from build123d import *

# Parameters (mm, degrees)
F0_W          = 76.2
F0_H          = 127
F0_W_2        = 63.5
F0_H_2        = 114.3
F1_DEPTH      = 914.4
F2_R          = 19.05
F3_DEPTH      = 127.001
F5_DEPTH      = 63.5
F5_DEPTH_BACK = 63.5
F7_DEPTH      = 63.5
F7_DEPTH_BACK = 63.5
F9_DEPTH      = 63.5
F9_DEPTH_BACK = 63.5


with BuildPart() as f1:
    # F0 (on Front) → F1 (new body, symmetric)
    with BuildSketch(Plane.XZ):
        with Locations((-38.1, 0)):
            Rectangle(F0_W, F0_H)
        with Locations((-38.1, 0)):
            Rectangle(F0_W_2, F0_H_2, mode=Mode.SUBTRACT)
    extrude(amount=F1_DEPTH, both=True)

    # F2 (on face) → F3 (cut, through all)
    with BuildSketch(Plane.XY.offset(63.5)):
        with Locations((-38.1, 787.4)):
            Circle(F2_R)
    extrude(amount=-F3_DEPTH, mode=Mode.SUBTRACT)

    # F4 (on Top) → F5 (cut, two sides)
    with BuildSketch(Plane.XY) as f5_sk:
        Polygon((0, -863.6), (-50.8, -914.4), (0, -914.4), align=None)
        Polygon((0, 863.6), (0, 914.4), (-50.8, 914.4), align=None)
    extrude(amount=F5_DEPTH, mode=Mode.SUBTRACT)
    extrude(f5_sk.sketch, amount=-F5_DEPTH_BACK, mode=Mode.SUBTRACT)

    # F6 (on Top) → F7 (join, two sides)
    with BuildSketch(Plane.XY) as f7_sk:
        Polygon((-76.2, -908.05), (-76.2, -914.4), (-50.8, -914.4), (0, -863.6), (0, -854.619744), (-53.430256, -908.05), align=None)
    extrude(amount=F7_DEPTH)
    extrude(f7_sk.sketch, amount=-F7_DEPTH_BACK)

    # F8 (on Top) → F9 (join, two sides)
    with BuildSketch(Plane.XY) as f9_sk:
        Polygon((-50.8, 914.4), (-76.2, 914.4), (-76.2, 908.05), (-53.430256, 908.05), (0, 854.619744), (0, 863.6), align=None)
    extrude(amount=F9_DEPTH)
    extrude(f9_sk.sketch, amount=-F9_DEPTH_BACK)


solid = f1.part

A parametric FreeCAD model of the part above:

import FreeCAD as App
import Part
import Sketcher

V = App.Vector
Q = App.Units.Quantity

doc = App.newDocument("Part")
body = doc.addObject("PartDesign::Body", "Body")

sketch1 = body.newObject("Sketcher::SketchObject", "Sketch")
sketch1.AttachmentSupport = (doc.getObject("XZ_Plane"), [""])
sketch1.MapMode = "FlatFace"
sketch1.addGeometry(Part.LineSegment(V(-76, 64, 0), V(-76, -64, 0)), False)
sketch1.addGeometry(Part.LineSegment(V(-76, -64, 0), V(0, -64, 0)), False)
sketch1.addGeometry(Part.LineSegment(V(0, -64, 0), V(0, 64, 0)), False)
sketch1.addGeometry(Part.LineSegment(V(0, 64, 0), V(-76, 64, 0)), False)
sketch1.addGeometry(Part.LineSegment(V(-6, -57, 0), V(-70, -57, 0)), False)
sketch1.addGeometry(Part.LineSegment(V(-70, -57, 0), V(-70, 57, 0)), False)
sketch1.addGeometry(Part.LineSegment(V(-70, 57, 0), V(-6, 57, 0)), False)
sketch1.addGeometry(Part.LineSegment(V(-6, 57, 0), V(-6, -57, 0)), False)
sketch1.addConstraint(Sketcher.Constraint("Coincident", 0, 2, 1, 1))
sketch1.addConstraint(Sketcher.Constraint("Coincident", 1, 2, 2, 1))
sketch1.addConstraint(Sketcher.Constraint("Coincident", 2, 2, 3, 1))
sketch1.addConstraint(Sketcher.Constraint("Coincident", 3, 2, 0, 1))
sketch1.addConstraint(Sketcher.Constraint("Coincident", 4, 2, 5, 1))
sketch1.addConstraint(Sketcher.Constraint("Coincident", 5, 2, 6, 1))
sketch1.addConstraint(Sketcher.Constraint("Coincident", 6, 2, 7, 1))
sketch1.addConstraint(Sketcher.Constraint("Coincident", 7, 2, 4, 1))
sketch1.addConstraint(Sketcher.Constraint("Vertical", 0))
sketch1.addConstraint(Sketcher.Constraint("Horizontal", 1))
sketch1.addConstraint(Sketcher.Constraint("Vertical", 2))
sketch1.addConstraint(Sketcher.Constraint("Horizontal", 3))
sketch1.addConstraint(Sketcher.Constraint("Horizontal", 4))
sketch1.addConstraint(Sketcher.Constraint("Vertical", 5))
sketch1.addConstraint(Sketcher.Constraint("Horizontal", 6))
sketch1.addConstraint(Sketcher.Constraint("Vertical", 7))
sketch1.addConstraint(Sketcher.Constraint("Symmetric", 1, 2, 2, 2, -1, 1))
sketch1.addConstraint(Sketcher.Constraint("DistanceX", 1, 1, 1, 2, Q("3 in")))
sketch1.addConstraint(Sketcher.Constraint("DistanceY", 0, 2, 0, 1, Q("5 in")))
sketch1.addConstraint(Sketcher.Constraint("DistanceX", 4, 2, 4, 1, Q("2.5 in")))
sketch1.addConstraint(Sketcher.Constraint("DistanceY", 5, 1, 5, 2, Q("4.5 in")))
sketch1.addConstraint(Sketcher.Constraint("DistanceX", 4, 2, -1, 1, Q("2.75 in")))
sketch1.addConstraint(Sketcher.Constraint("DistanceY", 4, 2, -1, 1, Q("2.25 in")))
pad1 = body.newObject("PartDesign::Pad", "Pad")
pad1.Profile = sketch1
pad1.Length = Q("72 in")
pad1.Midplane = True

sketch2 = body.newObject("Sketcher::SketchObject", "Sketch001")
sketch2.AttachmentSupport = (doc.getObject("XY_Plane"), [""])
sketch2.MapMode = "FlatFace"
sketch2.AttachmentOffset = App.Placement(V(0, 0, 2.5 * 25.4), App.Rotation())
sketch2.addGeometry(Part.Circle(V(-38, 787, 0), V(0, 0, 1), 19), False)
sketch2.addConstraint(Sketcher.Constraint("Diameter", 0, Q("1.5 in")))
sketch2.addConstraint(Sketcher.Constraint("DistanceY", -1, 1, 0, 3, Q("31 in")))
sketch2.addConstraint(Sketcher.Constraint("DistanceX", 0, 3, -1, 1, Q("1.5 in")))
pocket1 = body.newObject("PartDesign::Pocket", "Pocket")
pocket1.Profile = sketch2
pocket1.Type = "ThroughAll"

sketch3 = body.newObject("Sketcher::SketchObject", "Sketch002")
sketch3.AttachmentSupport = (doc.getObject("XY_Plane"), [""])
sketch3.MapMode = "FlatFace"
sketch3.addGeometry(Part.LineSegment(V(0, -864, 0), V(-51, -914, 0)), False)
sketch3.addGeometry(Part.LineSegment(V(-51, -914, 0), V(0, -914, 0)), False)
sketch3.addGeometry(Part.LineSegment(V(0, -914, 0), V(0, -864, 0)), False)
sketch3.addGeometry(Part.LineSegment(V(0, 864, 0), V(0, 914, 0)), False)
sketch3.addGeometry(Part.LineSegment(V(0, 914, 0), V(-51, 914, 0)), False)
sketch3.addGeometry(Part.LineSegment(V(-51, 914, 0), V(0, 864, 0)), False)
sketch3.addConstraint(Sketcher.Constraint("Coincident", 0, 2, 1, 1))
sketch3.addConstraint(Sketcher.Constraint("Coincident", 1, 2, 2, 1))
sketch3.addConstraint(Sketcher.Constraint("Coincident", 2, 2, 0, 1))
sketch3.addConstraint(Sketcher.Constraint("Coincident", 3, 2, 4, 1))
sketch3.addConstraint(Sketcher.Constraint("Coincident", 4, 2, 5, 1))
sketch3.addConstraint(Sketcher.Constraint("Coincident", 5, 2, 3, 1))
sketch3.addConstraint(Sketcher.Constraint("Horizontal", 1))
sketch3.addConstraint(Sketcher.Constraint("Vertical", 2))
sketch3.addConstraint(Sketcher.Constraint("Vertical", 3))
sketch3.addConstraint(Sketcher.Constraint("Horizontal", 4))
sketch3.addConstraint(Sketcher.Constraint("Symmetric", 1, 2, 3, 2, -1, 1))
sketch3.addConstraint(Sketcher.Constraint("Symmetric", 2, 2, 5, 2, -1))
sketch3.addConstraint(Sketcher.Constraint("Perpendicular", 0, 5))
sketch3.addConstraint(Sketcher.Constraint("Vertical", 0, 2, 4, 2))
sketch3.addConstraint(Sketcher.Constraint("DistanceX", 1, 1, 1, 2, Q("2 in")))
sketch3.addConstraint(Sketcher.Constraint("DistanceY", 0, 2, -1, 1, Q("36 in")))
pocket2 = body.newObject("PartDesign::Pocket", "Pocket001")
pocket2.Profile = sketch3
pocket2.Type = "ThroughAll"
pocket2.Midplane = True

sketch4 = body.newObject("Sketcher::SketchObject", "Sketch003")
sketch4.AttachmentSupport = (doc.getObject("XY_Plane"), [""])
sketch4.MapMode = "FlatFace"
sketch4.addGeometry(Part.LineSegment(V(-76, -908, 0), V(-76, -914, 0)), False)
sketch4.addGeometry(Part.LineSegment(V(-76, -914, 0), V(-51, -914, 0)), False)
sketch4.addGeometry(Part.LineSegment(V(-51, -914, 0), V(0, -864, 0)), False)
sketch4.addGeometry(Part.LineSegment(V(0, -864, 0), V(0, -855, 0)), False)
sketch4.addGeometry(Part.LineSegment(V(0, -855, 0), V(-53, -908, 0)), False)
sketch4.addGeometry(Part.LineSegment(V(-53, -908, 0), V(-76, -908, 0)), False)
sketch4.addConstraint(Sketcher.Constraint("Coincident", 0, 2, 1, 1))
sketch4.addConstraint(Sketcher.Constraint("Coincident", 1, 2, 2, 1))
sketch4.addConstraint(Sketcher.Constraint("Coincident", 2, 2, 3, 1))
sketch4.addConstraint(Sketcher.Constraint("Coincident", 3, 2, 4, 1))
sketch4.addConstraint(Sketcher.Constraint("Coincident", 4, 2, 5, 1))
sketch4.addConstraint(Sketcher.Constraint("Coincident", 5, 2, 0, 1))
sketch4.addConstraint(Sketcher.Constraint("Vertical", 0))
sketch4.addConstraint(Sketcher.Constraint("Horizontal", 1))
sketch4.addConstraint(Sketcher.Constraint("Vertical", 3))
sketch4.addConstraint(Sketcher.Constraint("Horizontal", 5))
sketch4.addConstraint(Sketcher.Constraint("PointOnObject", 2, 2, -2))
sketch4.addConstraint(Sketcher.Constraint("Parallel", 2, 4))
sketch4.addConstraint(Sketcher.Constraint("DistanceX", 1, 1, 1, 2, Q("1 in")))
sketch4.addConstraint(Sketcher.Constraint("DistanceX", 0, 2, -1, 1, Q("3 in")))
sketch4.addConstraint(Sketcher.Constraint("DistanceY", 0, 2, -1, 1, Q("36 in")))
sketch4.addConstraint(Sketcher.Constraint("DistanceY", 2, 2, -1, 1, Q("34 in")))
sketch4.addConstraint(Sketcher.Constraint("DistanceY", 0, 2, 0, 1, Q("0.25 in")))
sketch4.addConstraint(Sketcher.Constraint("DistanceX", 5, 2, 5, 1, 22.769744))
pad2 = body.newObject("PartDesign::Pad", "Pad001")
pad2.Profile = sketch4
pad2.Type = "TwoLengths"
pad2.Length = Q("2.5 in")
pad2.Length2 = Q("2.5 in")

sketch5 = body.newObject("Sketcher::SketchObject", "Sketch004")
sketch5.AttachmentSupport = (doc.getObject("XY_Plane"), [""])
sketch5.MapMode = "FlatFace"
sketch5.addGeometry(Part.LineSegment(V(-51, 914, 0), V(-76, 914, 0)), False)
sketch5.addGeometry(Part.LineSegment(V(-76, 914, 0), V(-76, 908, 0)), False)
sketch5.addGeometry(Part.LineSegment(V(-76, 908, 0), V(-53, 908, 0)), False)
sketch5.addGeometry(Part.LineSegment(V(-53, 908, 0), V(0, 855, 0)), False)
sketch5.addGeometry(Part.LineSegment(V(0, 855, 0), V(0, 864, 0)), False)
sketch5.addGeometry(Part.LineSegment(V(0, 864, 0), V(-51, 914, 0)), False)
sketch5.addConstraint(Sketcher.Constraint("Coincident", 0, 2, 1, 1))
sketch5.addConstraint(Sketcher.Constraint("Coincident", 1, 2, 2, 1))
sketch5.addConstraint(Sketcher.Constraint("Coincident", 2, 2, 3, 1))
sketch5.addConstraint(Sketcher.Constraint("Coincident", 3, 2, 4, 1))
sketch5.addConstraint(Sketcher.Constraint("Coincident", 4, 2, 5, 1))
sketch5.addConstraint(Sketcher.Constraint("Coincident", 5, 2, 0, 1))
sketch5.addConstraint(Sketcher.Constraint("Horizontal", 0))
sketch5.addConstraint(Sketcher.Constraint("Vertical", 1))
sketch5.addConstraint(Sketcher.Constraint("Horizontal", 2))
sketch5.addConstraint(Sketcher.Constraint("Vertical", 4))
sketch5.addConstraint(Sketcher.Constraint("PointOnObject", 3, 2, -2))
sketch5.addConstraint(Sketcher.Constraint("Parallel", 3, 5))
sketch5.addConstraint(Sketcher.Constraint("DistanceX", 0, 2, 0, 1, Q("1 in")))
sketch5.addConstraint(Sketcher.Constraint("DistanceX", 0, 2, -1, 1, Q("3 in")))
sketch5.addConstraint(Sketcher.Constraint("DistanceY", -1, 1, 0, 2, Q("36 in")))
sketch5.addConstraint(Sketcher.Constraint("DistanceY", -1, 1, 4, 2, Q("34 in")))
sketch5.addConstraint(Sketcher.Constraint("DistanceY", 1, 2, 1, 1, Q("0.25 in")))
sketch5.addConstraint(Sketcher.Constraint("DistanceX", 2, 1, 2, 2, 22.769744))
pad3 = body.newObject("PartDesign::Pad", "Pad002")
pad3.Profile = sketch5
pad3.Type = "TwoLengths"
pad3.Length = Q("2.5 in")
pad3.Length2 = Q("2.5 in")

doc.recompute()
